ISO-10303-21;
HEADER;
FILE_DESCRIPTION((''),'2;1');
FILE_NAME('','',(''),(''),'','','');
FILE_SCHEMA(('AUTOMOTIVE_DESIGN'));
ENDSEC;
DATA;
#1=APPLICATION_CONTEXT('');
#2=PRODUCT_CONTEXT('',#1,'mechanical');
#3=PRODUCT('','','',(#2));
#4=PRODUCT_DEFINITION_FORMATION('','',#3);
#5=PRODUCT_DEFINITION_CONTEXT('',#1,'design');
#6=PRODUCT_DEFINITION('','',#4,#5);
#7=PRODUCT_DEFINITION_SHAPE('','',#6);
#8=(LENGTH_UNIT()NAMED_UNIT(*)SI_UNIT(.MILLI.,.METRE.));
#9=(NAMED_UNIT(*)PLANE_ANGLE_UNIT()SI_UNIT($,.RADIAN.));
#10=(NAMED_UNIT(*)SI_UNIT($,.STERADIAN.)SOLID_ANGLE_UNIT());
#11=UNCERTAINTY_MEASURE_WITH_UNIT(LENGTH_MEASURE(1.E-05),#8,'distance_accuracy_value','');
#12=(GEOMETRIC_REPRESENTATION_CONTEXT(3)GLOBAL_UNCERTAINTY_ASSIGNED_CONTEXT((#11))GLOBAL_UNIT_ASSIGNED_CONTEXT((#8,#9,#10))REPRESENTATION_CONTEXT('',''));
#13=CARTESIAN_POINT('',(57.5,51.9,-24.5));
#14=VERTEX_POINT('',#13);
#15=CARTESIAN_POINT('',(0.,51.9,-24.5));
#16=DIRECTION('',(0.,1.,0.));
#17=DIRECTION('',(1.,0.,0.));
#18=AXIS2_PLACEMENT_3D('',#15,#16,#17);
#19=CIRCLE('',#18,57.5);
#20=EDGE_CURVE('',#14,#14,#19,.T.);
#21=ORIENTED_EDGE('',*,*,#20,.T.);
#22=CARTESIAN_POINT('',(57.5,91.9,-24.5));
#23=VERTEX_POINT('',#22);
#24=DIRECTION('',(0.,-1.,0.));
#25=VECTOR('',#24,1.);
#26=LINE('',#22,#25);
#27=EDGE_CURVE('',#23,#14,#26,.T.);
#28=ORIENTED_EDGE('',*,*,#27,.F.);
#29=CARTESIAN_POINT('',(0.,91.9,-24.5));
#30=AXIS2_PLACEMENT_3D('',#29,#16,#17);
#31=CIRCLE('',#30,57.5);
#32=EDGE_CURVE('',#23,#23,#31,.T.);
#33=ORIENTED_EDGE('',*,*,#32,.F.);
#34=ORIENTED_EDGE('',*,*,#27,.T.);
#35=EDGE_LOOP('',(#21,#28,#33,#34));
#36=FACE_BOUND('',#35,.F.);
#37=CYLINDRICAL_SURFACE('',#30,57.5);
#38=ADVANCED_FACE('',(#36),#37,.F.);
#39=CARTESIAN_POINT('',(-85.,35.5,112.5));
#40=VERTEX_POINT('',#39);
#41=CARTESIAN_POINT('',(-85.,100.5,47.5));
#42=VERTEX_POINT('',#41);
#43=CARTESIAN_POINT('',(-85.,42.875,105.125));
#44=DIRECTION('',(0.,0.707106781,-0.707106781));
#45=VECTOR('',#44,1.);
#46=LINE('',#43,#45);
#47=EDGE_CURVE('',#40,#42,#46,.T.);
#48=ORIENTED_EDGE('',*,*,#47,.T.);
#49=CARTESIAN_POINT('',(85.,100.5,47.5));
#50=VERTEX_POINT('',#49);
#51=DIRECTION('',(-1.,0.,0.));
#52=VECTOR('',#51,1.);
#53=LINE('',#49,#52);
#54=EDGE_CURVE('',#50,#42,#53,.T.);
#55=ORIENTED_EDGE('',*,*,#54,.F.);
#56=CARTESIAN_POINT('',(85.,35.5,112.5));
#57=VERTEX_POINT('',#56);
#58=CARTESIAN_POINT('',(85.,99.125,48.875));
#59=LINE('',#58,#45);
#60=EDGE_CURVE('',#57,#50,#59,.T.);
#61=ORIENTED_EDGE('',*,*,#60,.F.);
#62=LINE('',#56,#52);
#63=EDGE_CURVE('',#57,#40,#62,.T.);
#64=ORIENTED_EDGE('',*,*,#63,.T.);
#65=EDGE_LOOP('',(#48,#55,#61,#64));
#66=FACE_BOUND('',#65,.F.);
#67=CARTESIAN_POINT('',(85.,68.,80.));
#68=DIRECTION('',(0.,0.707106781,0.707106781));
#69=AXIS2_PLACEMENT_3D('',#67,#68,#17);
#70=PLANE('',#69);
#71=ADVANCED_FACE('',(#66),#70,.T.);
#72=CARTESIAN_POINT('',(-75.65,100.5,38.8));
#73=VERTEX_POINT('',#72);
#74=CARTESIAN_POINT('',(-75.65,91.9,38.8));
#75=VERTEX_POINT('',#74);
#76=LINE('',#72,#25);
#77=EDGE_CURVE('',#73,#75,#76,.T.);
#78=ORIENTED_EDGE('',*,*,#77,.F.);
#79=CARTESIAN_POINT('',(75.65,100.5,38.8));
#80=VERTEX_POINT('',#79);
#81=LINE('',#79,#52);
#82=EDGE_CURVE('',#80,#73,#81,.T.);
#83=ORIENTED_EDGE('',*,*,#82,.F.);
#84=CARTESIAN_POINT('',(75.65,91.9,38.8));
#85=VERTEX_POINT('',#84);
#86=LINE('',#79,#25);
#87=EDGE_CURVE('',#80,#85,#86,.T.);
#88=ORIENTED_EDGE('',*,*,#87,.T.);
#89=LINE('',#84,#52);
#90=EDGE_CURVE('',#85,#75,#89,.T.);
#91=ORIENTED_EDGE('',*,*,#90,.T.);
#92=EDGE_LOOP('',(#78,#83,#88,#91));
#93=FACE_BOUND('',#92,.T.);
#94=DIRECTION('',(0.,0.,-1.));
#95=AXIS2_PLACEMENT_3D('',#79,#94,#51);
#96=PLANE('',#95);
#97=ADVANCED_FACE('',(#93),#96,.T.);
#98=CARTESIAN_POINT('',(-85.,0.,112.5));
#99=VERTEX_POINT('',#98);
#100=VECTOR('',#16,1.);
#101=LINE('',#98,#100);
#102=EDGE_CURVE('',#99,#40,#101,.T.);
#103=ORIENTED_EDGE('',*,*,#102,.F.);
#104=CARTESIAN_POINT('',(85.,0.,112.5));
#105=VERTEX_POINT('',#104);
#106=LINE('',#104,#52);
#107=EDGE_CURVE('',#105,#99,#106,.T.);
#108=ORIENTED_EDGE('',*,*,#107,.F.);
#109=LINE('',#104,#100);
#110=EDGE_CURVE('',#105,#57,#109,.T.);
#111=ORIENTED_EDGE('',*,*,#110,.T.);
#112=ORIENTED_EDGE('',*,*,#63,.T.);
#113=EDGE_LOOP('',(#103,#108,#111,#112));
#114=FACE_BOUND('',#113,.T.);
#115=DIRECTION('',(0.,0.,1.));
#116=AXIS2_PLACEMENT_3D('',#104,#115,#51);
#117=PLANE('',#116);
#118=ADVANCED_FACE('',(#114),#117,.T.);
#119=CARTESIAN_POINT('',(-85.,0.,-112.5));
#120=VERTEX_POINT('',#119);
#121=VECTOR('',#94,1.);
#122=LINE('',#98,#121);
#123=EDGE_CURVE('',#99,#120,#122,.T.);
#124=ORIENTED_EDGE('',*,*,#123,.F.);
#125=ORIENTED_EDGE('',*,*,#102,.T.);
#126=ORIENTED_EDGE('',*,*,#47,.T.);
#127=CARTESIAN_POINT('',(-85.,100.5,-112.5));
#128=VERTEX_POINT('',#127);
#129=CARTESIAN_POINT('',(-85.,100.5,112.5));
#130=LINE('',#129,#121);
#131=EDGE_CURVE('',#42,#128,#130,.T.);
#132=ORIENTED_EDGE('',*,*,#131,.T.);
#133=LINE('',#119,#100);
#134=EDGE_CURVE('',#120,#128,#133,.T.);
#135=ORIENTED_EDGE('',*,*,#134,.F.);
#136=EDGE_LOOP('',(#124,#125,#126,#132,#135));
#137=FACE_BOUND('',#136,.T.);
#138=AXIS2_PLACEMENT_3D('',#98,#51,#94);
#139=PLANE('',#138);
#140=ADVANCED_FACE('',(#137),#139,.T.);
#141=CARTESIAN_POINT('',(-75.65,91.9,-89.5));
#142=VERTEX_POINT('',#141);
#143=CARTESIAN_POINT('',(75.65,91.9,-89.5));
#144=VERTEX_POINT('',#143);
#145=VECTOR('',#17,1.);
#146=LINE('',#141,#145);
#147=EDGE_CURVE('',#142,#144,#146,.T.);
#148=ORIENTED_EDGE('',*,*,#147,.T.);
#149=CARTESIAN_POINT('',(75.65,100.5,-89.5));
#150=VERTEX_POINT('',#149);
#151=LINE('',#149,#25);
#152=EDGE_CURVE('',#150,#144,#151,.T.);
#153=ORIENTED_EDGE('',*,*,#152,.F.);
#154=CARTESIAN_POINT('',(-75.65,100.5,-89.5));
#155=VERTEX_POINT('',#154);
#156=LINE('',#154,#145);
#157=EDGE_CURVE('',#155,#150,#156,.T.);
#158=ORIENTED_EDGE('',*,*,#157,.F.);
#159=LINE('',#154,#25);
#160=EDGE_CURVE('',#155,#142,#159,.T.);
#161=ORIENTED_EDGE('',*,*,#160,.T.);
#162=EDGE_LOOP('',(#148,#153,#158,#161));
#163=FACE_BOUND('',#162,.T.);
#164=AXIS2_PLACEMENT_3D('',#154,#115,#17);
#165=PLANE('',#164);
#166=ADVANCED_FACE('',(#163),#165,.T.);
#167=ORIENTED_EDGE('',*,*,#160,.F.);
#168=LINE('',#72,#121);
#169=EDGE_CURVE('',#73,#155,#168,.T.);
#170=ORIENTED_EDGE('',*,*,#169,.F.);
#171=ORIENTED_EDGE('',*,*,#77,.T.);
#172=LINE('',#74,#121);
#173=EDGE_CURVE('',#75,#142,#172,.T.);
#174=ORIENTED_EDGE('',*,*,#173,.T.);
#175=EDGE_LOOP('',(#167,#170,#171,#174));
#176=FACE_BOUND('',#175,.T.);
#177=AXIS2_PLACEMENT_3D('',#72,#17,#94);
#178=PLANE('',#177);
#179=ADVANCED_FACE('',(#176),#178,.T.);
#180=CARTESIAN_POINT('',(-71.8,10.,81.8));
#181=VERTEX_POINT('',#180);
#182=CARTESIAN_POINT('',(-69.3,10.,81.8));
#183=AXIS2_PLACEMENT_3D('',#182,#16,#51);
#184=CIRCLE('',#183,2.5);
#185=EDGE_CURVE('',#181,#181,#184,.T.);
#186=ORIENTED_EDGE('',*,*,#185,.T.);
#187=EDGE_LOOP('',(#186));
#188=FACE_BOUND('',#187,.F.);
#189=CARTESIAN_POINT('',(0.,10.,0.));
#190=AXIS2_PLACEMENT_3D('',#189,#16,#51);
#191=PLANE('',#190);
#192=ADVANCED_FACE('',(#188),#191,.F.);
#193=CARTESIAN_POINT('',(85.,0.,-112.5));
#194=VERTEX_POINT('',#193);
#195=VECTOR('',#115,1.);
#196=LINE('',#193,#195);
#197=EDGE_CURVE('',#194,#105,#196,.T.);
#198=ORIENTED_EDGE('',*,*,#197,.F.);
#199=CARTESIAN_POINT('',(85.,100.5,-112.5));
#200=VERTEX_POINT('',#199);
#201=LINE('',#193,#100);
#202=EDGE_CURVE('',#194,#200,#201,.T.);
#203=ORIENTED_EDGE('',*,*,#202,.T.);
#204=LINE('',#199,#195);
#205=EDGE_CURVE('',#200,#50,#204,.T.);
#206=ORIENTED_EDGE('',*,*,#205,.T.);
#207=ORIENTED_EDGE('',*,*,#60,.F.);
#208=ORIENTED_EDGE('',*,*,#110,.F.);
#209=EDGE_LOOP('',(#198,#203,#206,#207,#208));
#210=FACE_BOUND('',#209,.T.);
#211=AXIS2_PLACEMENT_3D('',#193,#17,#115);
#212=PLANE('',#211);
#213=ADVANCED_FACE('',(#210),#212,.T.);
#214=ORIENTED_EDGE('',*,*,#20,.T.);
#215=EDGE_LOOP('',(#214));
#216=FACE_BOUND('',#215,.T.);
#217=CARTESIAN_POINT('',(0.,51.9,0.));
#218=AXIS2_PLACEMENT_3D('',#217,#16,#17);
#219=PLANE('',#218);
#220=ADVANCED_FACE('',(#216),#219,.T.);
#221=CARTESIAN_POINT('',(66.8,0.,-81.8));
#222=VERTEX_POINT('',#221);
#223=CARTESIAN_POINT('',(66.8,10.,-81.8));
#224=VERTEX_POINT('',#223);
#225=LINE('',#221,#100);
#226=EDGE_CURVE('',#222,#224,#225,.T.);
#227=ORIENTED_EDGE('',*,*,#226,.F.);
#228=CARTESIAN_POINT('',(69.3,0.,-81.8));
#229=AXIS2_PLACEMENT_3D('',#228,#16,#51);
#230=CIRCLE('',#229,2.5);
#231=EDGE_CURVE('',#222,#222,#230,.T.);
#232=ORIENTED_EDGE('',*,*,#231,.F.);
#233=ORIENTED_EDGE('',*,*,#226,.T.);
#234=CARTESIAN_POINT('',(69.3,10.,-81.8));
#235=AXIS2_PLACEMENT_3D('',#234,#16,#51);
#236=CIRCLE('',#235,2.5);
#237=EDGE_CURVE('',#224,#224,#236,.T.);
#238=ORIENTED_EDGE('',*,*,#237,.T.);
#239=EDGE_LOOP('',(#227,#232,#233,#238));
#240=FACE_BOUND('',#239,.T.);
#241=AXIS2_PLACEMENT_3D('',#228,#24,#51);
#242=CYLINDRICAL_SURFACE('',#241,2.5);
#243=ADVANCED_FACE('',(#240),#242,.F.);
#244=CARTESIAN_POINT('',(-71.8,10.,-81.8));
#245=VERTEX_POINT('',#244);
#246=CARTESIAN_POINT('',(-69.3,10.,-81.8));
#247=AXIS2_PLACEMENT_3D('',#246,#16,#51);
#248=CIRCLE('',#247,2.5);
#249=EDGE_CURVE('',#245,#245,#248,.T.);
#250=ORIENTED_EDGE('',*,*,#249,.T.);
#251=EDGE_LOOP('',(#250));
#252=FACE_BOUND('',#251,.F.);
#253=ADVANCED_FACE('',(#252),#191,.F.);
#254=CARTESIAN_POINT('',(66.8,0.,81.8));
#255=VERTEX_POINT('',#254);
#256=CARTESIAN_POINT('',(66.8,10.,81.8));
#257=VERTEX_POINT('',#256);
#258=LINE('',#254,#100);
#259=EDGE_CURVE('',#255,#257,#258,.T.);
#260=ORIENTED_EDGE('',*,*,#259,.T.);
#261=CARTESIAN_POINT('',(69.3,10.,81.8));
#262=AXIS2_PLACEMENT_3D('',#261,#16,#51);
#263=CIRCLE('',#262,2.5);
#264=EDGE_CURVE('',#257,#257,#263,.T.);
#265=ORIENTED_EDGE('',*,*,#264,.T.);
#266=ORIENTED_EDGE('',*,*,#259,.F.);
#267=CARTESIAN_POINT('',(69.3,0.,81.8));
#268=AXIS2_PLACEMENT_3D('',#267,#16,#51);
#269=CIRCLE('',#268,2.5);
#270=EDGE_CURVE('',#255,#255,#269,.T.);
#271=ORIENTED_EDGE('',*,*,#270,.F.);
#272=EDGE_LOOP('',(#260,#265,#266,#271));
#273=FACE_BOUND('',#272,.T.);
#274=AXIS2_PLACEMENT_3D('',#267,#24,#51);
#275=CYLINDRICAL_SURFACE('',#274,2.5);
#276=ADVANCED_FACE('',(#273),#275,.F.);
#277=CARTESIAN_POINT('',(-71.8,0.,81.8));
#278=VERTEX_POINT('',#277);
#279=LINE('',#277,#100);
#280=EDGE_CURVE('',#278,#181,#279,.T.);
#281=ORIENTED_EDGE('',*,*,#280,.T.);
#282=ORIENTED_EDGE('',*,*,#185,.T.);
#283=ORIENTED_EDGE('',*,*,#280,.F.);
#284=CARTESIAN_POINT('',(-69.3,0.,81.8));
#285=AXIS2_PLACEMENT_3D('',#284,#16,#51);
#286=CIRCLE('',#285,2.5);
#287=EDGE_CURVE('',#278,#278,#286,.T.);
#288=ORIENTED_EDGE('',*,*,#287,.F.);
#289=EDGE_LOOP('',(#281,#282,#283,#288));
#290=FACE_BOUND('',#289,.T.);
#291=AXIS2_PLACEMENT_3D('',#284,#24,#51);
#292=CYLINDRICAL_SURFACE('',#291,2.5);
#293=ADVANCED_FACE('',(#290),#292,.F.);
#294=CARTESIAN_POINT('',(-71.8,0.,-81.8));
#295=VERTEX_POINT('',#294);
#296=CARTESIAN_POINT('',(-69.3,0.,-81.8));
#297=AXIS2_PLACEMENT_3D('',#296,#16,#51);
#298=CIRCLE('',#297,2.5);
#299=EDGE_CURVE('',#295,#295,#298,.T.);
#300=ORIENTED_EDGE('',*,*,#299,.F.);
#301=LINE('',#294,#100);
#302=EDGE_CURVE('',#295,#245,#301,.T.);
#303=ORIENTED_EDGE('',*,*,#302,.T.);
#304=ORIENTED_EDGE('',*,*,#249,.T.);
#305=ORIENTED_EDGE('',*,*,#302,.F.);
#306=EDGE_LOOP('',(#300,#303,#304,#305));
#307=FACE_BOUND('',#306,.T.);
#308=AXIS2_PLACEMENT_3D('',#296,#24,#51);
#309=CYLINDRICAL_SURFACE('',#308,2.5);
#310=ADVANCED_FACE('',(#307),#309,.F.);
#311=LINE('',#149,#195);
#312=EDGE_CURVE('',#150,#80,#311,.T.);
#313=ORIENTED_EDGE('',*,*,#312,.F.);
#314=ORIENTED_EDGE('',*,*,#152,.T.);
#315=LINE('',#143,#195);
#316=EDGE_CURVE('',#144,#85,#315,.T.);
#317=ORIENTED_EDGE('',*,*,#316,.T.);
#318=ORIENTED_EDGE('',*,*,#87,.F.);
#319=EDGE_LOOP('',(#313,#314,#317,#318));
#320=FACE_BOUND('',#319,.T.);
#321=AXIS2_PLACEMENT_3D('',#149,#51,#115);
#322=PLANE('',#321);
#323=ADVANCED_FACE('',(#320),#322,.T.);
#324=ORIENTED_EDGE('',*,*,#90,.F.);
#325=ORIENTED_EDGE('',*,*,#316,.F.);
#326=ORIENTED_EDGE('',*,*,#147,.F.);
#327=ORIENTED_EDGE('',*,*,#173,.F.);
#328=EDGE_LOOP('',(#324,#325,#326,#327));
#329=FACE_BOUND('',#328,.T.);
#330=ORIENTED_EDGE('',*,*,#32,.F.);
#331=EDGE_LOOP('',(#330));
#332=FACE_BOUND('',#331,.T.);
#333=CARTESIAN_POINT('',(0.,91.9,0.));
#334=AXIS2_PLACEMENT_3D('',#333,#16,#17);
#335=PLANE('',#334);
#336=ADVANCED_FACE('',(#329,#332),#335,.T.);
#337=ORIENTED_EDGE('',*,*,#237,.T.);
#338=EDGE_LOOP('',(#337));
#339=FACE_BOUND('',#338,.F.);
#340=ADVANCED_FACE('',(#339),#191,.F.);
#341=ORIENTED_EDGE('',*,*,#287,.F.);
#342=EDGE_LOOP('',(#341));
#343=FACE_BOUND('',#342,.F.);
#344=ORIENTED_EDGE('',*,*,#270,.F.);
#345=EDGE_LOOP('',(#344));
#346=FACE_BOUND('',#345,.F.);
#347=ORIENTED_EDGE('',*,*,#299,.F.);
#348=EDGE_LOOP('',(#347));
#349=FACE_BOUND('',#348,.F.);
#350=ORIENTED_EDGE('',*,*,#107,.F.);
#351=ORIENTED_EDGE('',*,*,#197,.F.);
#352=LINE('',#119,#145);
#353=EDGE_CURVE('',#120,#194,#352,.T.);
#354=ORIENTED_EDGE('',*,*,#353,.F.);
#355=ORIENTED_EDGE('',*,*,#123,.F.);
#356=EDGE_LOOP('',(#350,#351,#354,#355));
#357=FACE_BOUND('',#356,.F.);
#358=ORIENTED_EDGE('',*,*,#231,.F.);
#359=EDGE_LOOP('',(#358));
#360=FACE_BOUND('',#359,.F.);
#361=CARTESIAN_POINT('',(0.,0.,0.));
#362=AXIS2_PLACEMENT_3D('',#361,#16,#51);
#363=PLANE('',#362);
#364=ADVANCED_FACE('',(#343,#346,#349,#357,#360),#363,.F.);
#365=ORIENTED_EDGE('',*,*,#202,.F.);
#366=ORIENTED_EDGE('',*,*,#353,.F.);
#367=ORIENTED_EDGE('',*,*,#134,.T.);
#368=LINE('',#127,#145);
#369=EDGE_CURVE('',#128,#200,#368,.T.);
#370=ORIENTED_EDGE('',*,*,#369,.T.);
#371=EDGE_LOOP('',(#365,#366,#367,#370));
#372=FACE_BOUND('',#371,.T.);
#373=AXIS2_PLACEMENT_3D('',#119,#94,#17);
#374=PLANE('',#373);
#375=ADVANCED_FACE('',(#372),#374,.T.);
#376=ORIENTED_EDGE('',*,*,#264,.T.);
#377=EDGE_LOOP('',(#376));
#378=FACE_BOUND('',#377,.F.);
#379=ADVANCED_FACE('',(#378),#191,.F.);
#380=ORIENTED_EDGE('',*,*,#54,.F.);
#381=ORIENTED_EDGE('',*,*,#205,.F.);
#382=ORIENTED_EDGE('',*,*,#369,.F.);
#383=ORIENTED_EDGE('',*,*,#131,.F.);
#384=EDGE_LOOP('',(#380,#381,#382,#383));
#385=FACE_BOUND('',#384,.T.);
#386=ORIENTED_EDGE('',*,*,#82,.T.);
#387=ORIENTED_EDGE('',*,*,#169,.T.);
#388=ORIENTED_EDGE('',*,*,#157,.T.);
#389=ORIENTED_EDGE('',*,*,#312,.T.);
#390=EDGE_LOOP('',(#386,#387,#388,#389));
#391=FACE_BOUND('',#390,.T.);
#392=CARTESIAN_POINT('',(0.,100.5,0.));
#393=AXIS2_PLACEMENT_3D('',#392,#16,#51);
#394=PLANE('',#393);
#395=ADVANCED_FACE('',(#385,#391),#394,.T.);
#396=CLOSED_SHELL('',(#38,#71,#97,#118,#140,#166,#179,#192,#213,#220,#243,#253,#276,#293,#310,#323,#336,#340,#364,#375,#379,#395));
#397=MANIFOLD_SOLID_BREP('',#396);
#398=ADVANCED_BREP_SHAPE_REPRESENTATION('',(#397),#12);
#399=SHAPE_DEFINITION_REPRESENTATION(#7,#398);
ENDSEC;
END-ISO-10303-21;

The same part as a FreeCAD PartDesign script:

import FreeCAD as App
import Part
import Sketcher
from FreeCAD import Vector
Q = App.Units.Quantity


def edges_at(feature, points):
    """Names of the edges that pass closest to the given points."""
    edges = feature.Shape.Edges
    near = lambda p: min(range(len(edges)), key=lambda i: edges[i].distToShape(Part.Vertex(*p))[0])
    return sorted({f"Edge{near(p) + 1}" for p in points})

doc = App.newDocument("Part")
body = doc.addObject("PartDesign::Body", "Body")

sketch1 = body.newObject("Sketcher::SketchObject", "Sketch")
sketch1.AttachmentSupport = (doc.getObject("XZ_Plane"), [""])
sketch1.MapMode = "FlatFace"
sketch1.addGeometry([
    Part.LineSegment(Vector(-85, 112, 0), Vector(85, 112, 0)),
    Part.LineSegment(Vector(85, 112, 0), Vector(85, -112, 0)),
    Part.LineSegment(Vector(85, -112, 0), Vector(-85, -112, 0)),
    Part.LineSegment(Vector(-85, -112, 0), Vector(-85, 112, 0)),
], False)
sketch1.addConstraint([
    Sketcher.Constraint("Coincident", 0, 2, 1, 1),
    Sketcher.Constraint("Coincident", 1, 2, 2, 1),
    Sketcher.Constraint("Coincident", 2, 2, 3, 1),
    Sketcher.Constraint("Coincident", 3, 2, 0, 1),
    Sketcher.Constraint("Horizontal", 0),
    Sketcher.Constraint("Vertical", 1),
    Sketcher.Constraint("Horizontal", 2),
    Sketcher.Constraint("Vertical", 3),
    Sketcher.Constraint("Symmetric", 0, 2, 2, 2, -1, 1),
    Sketcher.Constraint("DistanceX", 0, 1, 0, 2, Q("170 mm")),
    Sketcher.Constraint("DistanceY", 1, 2, 1, 1, Q("225 mm")),
])
pad1 = body.newObject("PartDesign::Pad", "Pad")
pad1.Profile = sketch1
pad1.Length = 100.5
pad1.Reversed = True

sketch2 = body.newObject("Sketcher::SketchObject", "Sketch001")
sketch2.AttachmentSupport = (doc.getObject("XZ_Plane"), [""])
sketch2.MapMode = "FlatFace"
sketch2.addGeometry([
    Part.Circle(Vector(-69.3, 81.8, 0), Vector(0, 0, 1), 2.5),
    Part.Circle(Vector(-69.3, -81.8, 0), Vector(0, 0, 1), 2.5),
    Part.Circle(Vector(69.3, -81.8, 0), Vector(0, 0, 1), 2.5),
    Part.Circle(Vector(69.3, 81.8, 0), Vector(0, 0, 1), 2.5),
], False)
sketch2.addConstraint([
    Sketcher.Constraint("Equal", 0, 1),
    Sketcher.Constraint("Equal", 1, 2),
    Sketcher.Constraint("Equal", 2, 3),
    Sketcher.Constraint("Symmetric", 0, 3, 2, 3, -1, 1),
    Sketcher.Constraint("Symmetric", 1, 3, 3, 3, -1, 1),
    Sketcher.Constraint("Symmetric", 1, 3, 2, 3, -2),
    Sketcher.Constraint("Diameter", 0, Q("5 mm")),
    Sketcher.Constraint("DistanceY", 1, 3, 0, 3, Q("163.6 mm")),
    Sketcher.Constraint("DistanceX", 1, 3, 2, 3, Q("138.6 mm")),
])
pocket1 = body.newObject("PartDesign::Pocket", "Pocket")
pocket1.Profile = sketch2
pocket1.Length = 10
doc.recompute()

chamfer = body.newObject("PartDesign::Chamfer", "Chamfer")
chamfer.Base = (pocket1, edges_at(pocket1, [(0, 100.5, 112.5)]))
chamfer.Size = 65

sketch3 = body.newObject("Sketcher::SketchObject", "Sketch002")
sketch3.AttachmentSupport = (doc.getObject("XZ_Plane"), [""])
sketch3.MapMode = "FlatFace"
sketch3.AttachmentOffset = App.Placement(Vector(0, 0, -100.5), App.Rotation())
sketch3.addGeometry([
    Part.LineSegment(Vector(-76, 39, 0), Vector(76, 39, 0)),
    Part.LineSegment(Vector(76, 39, 0), Vector(76, -90, 0)),
    Part.LineSegment(Vector(76, -90, 0), Vector(-76, -90, 0)),
    Part.LineSegment(Vector(-76, -90, 0), Vector(-76, 39, 0)),
], False)
sketch3.addConstraint([
    Sketcher.Constraint("Coincident", 0, 2, 1, 1),
    Sketcher.Constraint("Coincident", 1, 2, 2, 1),
    Sketcher.Constraint("Coincident", 2, 2, 3, 1),
    Sketcher.Constraint("Coincident", 3, 2, 0, 1),
    Sketcher.Constraint("Horizontal", 0),
    Sketcher.Constraint("Vertical", 1),
    Sketcher.Constraint("Horizontal", 2),
    Sketcher.Constraint("Vertical", 3),
    Sketcher.Constraint("DistanceX", 0, 1, 0, 2, Q("151.3 mm")),
    Sketcher.Constraint("DistanceY", 1, 2, 1, 1, Q("128.3 mm")),
    Sketcher.Constraint("DistanceY", -1, 1, 0, 2, Q("38.8 mm")),
    Sketcher.Constraint("DistanceX", -1, 1, 0, 2, Q("75.65 mm")),
])
pocket2 = body.newObject("PartDesign::Pocket", "Pocket001")
pocket2.Profile = sketch3
pocket2.Length = 8.6
pocket2.Reversed = True

sketch4 = body.newObject("Sketcher::SketchObject", "Sketch003")
sketch4.AttachmentSupport = (doc.getObject("XZ_Plane"), [""])
sketch4.MapMode = "FlatFace"
sketch4.AttachmentOffset = App.Placement(Vector(0, 0, -91.9), App.Rotation())
sketch4.addGeometry(Part.Circle(Vector(0, -24, 0), Vector(0, 0, 1), 58), False)
sketch4.addConstraint([
    Sketcher.Constraint("PointOnObject", 0, 3, -2),
    Sketcher.Constraint("Diameter", 0, Q("115 mm")),
    Sketcher.Constraint("DistanceY", 0, 3, -1, 1, Q("24.5 mm")),
])
pocket3 = body.newObject("PartDesign::Pocket", "Pocket002")
pocket3.Profile = sketch4
pocket3.Length = 40
pocket3.Reversed = True

doc.recompute()
